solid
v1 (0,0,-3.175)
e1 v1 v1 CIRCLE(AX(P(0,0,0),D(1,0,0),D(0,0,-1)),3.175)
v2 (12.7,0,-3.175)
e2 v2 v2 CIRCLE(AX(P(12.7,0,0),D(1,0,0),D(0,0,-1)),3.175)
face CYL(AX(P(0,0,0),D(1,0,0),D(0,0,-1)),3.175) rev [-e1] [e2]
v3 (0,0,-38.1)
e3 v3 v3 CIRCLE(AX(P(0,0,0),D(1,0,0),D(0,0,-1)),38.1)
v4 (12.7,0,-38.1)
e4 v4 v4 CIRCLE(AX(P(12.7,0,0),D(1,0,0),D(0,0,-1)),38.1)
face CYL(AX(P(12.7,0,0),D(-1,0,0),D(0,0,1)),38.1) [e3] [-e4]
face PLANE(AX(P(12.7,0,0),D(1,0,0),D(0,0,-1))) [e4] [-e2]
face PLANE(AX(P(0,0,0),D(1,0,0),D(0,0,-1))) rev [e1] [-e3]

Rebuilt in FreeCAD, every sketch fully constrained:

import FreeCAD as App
import Part
import Sketcher

V = App.Vector
Q = App.Units.Quantity

doc = App.newDocument("Part")
body = doc.addObject("PartDesign::Body", "Body")

# Sketch on YZ plane
sketch1 = body.newObject("Sketcher::SketchObject", "Sketch")
sketch1.AttachmentSupport = (doc.getObject("YZ_Plane"), [""])
sketch1.MapMode = "FlatFace"
sketch1.addGeometry(Part.Circle(V(0, 0, 0), V(0, 0, 1), 38.1), False)
sketch1.addConstraint([
    Sketcher.Constraint("Coincident", 0, 3, -1, 1),
    Sketcher.Constraint("Diameter", 0, Q("3 in")),
])
pad1 = body.newObject("PartDesign::Pad", "Pad")
pad1.Profile = sketch1
pad1.Length = Q("0.5 in")

# Sketch on YZ plane
sketch2 = body.newObject("Sketcher::SketchObject", "Sketch001")
sketch2.AttachmentSupport = (doc.getObject("YZ_Plane"), [""])
sketch2.MapMode = "FlatFace"
sketch2.AttachmentOffset = App.Placement(V(0, 0, 0.5 * 25.4), App.Rotation())
sketch2.addGeometry(Part.Circle(V(0, 0, 0), V(0, 0, 1), 3.175), False)
sketch2.addConstraint([
    Sketcher.Constraint("Coincident", 0, 3, -1, 1),
    Sketcher.Constraint("Diameter", 0, Q("0.25 in")),
])
pocket1 = body.newObject("PartDesign::Pocket", "Pocket")
pocket1.Profile = sketch2
pocket1.Length = Q("0.5 in")

doc.recompute()
